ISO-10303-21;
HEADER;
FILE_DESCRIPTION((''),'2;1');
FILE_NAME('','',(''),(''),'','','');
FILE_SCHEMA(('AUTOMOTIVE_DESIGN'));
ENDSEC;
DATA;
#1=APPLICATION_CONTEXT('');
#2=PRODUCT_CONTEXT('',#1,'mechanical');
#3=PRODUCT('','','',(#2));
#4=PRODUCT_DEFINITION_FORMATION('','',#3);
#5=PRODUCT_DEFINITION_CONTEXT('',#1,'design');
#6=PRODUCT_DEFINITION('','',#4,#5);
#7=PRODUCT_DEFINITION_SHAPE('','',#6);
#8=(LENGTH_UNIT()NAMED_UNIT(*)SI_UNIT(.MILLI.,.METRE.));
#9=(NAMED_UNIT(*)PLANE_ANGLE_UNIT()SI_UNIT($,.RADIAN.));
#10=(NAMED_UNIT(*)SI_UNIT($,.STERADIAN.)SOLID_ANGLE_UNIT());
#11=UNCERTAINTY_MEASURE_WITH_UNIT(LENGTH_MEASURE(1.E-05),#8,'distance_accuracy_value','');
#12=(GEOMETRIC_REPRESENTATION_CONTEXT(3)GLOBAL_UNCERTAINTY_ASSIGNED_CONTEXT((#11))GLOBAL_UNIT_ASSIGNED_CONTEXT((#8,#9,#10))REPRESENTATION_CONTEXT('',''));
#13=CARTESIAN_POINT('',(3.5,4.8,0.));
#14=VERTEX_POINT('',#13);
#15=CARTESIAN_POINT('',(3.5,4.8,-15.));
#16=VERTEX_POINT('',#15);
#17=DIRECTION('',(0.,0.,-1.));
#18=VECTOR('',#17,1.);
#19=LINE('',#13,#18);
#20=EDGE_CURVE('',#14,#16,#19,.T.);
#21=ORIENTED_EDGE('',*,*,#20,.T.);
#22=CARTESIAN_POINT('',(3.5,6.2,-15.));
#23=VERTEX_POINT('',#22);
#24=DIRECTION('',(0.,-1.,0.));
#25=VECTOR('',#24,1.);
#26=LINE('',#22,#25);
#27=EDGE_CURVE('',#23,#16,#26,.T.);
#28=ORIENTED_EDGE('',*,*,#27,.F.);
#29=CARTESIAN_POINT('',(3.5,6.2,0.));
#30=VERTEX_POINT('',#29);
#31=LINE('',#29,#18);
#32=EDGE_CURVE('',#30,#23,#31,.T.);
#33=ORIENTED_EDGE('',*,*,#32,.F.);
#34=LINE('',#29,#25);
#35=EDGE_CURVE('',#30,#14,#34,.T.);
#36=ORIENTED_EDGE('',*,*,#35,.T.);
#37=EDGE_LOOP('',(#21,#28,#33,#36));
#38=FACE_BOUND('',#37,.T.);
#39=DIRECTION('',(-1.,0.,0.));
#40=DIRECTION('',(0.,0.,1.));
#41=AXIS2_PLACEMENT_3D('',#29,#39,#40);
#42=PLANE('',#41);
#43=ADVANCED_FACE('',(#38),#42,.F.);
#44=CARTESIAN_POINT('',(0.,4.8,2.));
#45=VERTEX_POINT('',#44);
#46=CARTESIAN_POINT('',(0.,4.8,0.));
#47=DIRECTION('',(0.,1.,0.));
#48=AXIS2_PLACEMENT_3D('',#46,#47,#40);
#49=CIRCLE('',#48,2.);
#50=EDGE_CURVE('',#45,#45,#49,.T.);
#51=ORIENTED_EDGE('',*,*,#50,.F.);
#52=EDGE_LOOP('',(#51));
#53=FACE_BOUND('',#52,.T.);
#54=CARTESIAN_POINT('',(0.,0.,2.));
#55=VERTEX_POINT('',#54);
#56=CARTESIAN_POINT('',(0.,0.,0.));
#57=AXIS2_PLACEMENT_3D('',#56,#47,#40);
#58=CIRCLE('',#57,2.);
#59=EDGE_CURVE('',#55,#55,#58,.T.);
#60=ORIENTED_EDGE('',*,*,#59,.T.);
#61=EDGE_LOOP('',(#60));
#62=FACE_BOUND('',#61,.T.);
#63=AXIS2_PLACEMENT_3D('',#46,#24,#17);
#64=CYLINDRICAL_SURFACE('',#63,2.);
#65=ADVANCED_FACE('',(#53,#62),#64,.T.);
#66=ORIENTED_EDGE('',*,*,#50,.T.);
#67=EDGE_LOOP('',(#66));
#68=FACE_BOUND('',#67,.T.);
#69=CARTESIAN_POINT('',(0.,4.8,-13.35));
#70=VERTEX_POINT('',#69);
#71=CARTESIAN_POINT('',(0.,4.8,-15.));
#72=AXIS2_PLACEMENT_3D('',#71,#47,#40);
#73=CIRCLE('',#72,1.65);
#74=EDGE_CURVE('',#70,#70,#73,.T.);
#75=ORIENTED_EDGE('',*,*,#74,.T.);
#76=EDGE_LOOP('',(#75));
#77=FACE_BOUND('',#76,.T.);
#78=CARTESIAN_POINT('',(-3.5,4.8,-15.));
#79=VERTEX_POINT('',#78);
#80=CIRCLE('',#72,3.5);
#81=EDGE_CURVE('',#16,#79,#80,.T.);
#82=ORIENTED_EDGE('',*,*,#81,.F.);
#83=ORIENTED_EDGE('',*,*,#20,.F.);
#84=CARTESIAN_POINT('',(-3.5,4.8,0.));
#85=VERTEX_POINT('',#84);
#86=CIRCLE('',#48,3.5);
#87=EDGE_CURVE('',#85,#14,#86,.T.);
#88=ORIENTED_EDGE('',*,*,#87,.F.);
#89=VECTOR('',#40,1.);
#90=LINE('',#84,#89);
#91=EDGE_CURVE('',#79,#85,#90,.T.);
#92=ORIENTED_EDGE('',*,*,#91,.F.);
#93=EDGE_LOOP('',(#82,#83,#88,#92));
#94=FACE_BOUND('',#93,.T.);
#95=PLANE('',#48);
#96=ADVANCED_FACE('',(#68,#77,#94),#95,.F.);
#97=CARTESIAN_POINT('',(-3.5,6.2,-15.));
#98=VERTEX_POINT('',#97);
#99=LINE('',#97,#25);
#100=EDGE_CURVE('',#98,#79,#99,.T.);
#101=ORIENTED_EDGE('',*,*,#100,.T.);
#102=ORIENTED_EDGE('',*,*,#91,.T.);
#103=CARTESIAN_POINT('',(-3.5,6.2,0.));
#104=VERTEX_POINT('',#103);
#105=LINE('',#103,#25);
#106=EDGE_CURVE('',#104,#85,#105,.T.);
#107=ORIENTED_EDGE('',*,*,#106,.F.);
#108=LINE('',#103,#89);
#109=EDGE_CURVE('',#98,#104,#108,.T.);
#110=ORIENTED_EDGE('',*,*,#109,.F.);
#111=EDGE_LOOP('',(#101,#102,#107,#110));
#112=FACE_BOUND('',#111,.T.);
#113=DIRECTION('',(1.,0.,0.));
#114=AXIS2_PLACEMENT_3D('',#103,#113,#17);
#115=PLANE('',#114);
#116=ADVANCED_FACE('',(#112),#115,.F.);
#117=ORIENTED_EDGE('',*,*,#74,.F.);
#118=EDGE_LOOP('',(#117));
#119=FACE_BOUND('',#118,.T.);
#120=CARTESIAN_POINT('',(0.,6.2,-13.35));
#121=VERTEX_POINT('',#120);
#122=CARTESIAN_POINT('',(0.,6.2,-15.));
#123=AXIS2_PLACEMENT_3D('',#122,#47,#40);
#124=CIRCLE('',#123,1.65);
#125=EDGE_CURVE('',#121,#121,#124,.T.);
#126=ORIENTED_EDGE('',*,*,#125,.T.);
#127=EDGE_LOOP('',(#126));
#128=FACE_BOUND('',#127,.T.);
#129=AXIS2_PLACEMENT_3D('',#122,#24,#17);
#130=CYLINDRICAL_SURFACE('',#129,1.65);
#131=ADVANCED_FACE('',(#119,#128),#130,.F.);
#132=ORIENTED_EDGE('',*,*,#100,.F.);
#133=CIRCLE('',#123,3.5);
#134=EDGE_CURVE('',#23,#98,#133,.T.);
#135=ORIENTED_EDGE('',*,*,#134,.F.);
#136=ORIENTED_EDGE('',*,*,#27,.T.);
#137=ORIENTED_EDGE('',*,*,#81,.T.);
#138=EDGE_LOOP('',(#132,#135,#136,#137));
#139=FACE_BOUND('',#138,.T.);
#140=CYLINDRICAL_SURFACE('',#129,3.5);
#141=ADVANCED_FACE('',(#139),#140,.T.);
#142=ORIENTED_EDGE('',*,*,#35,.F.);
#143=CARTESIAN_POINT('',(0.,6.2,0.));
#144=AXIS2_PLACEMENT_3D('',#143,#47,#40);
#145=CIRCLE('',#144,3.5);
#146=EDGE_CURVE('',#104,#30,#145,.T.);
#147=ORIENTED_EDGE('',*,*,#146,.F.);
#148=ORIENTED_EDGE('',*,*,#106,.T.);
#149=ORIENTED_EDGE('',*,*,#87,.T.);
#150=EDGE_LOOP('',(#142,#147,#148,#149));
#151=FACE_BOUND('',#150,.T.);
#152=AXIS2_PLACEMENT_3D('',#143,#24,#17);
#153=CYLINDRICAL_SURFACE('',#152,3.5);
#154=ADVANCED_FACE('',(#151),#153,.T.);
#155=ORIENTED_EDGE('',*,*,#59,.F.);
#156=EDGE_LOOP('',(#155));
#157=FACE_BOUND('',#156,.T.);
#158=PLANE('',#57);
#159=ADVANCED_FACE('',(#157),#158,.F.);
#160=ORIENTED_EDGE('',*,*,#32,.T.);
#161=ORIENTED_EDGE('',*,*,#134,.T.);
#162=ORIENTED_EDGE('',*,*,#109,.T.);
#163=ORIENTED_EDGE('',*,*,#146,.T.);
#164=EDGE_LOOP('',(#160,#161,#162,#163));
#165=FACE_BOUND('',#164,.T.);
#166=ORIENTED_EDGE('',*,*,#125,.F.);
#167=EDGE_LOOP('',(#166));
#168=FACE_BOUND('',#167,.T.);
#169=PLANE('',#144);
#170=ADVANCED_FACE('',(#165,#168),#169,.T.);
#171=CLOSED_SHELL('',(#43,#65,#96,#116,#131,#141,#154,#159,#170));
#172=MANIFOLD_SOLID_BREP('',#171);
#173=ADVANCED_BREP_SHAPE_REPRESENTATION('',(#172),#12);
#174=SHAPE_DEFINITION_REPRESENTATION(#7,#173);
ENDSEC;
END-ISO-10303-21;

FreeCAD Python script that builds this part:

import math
import FreeCAD as App
import Part
import Sketcher

V = App.Vector
Q = App.Units.Quantity

doc = App.newDocument("Part")
body = doc.addObject("PartDesign::Body", "Body")

# Sketch on XZ plane
sketch1 = body.newObject("Sketcher::SketchObject", "Sketch")
sketch1.AttachmentSupport = (doc.getObject("XZ_Plane"), [""])
sketch1.MapMode = "FlatFace"
sketch1.addGeometry(Part.Circle(V(0, 0, 0), V(0, 0, 1), 2), False)
sketch1.addConstraint(Sketcher.Constraint("Coincident", 0, 3, -1, 1))
sketch1.addConstraint(Sketcher.Constraint("Diameter", 0, Q("4 mm")))
pad1 = body.newObject("PartDesign::Pad", "Pad")
pad1.Profile = sketch1
pad1.Length = 4.8
pad1.Reversed = True

# Sketch on XZ plane
sketch2 = body.newObject("Sketcher::SketchObject", "Sketch001")
sketch2.AttachmentSupport = (doc.getObject("XZ_Plane"), [""])
sketch2.MapMode = "FlatFace"
sketch2.AttachmentOffset = App.Placement(V(0, 0, -4.8), App.Rotation())
sketch2.addGeometry(Part.LineSegment(V(-3.5, -15, 0), V(-3.5, 0, 0)), False)
sketch2.addGeometry(Part.ArcOfCircle(Part.Circle(V(0, 0, 0), V(0, 0, 1), 3.5), math.radians(0), math.radians(180)), False)
sketch2.addGeometry(Part.LineSegment(V(3.5, 0, 0), V(3.5, -15, 0)), False)
sketch2.addGeometry(Part.ArcOfCircle(Part.Circle(V(0, -15, 0), V(0, 0, 1), 3.5), math.radians(180), math.radians(360)), False)
sketch2.addGeometry(Part.Circle(V(0, -15, 0), V(0, 0, 1), 1.6), False)
sketch2.addConstraint(Sketcher.Constraint("Tangent", 0, 2, 1, 2))
sketch2.addConstraint(Sketcher.Constraint("Tangent", 1, 1, 2, 1))
sketch2.addConstraint(Sketcher.Constraint("Tangent", 2, 2, 3, 2))
sketch2.addConstraint(Sketcher.Constraint("Tangent", 3, 1, 0, 1))
sketch2.addConstraint(Sketcher.Constraint("Vertical", 0))
sketch2.addConstraint(Sketcher.Constraint("Vertical", 2))
sketch2.addConstraint(Sketcher.Constraint("Coincident", 1, 3, -1, 1))
sketch2.addConstraint(Sketcher.Constraint("Coincident", 4, 3, 3, 3))
sketch2.addConstraint(Sketcher.Constraint("Diameter", 4, Q("3.3 mm")))
sketch2.addConstraint(Sketcher.Constraint("Radius", 1, Q("3.5 mm")))
sketch2.addConstraint(Sketcher.Constraint("DistanceY", 0, 1, 0, 2, Q("15 mm")))
pad2 = body.newObject("PartDesign::Pad", "Pad001")
pad2.Profile = sketch2
pad2.Length = 1.4
pad2.Reversed = True

doc.recompute()
